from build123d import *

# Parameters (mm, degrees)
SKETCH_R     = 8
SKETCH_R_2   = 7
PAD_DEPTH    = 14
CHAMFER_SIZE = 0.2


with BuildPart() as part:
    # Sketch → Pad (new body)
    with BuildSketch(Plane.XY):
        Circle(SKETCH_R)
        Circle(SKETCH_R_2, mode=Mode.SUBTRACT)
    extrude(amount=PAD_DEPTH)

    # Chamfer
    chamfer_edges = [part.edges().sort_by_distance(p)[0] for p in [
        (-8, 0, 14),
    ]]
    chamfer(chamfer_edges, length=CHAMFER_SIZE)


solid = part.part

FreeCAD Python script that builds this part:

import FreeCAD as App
import Part
import Sketcher
from FreeCAD import Vector


def edges_at(feature, points):
    """Names of the edges that pass closest to the given points."""
    edges = feature.Shape.Edges
    near = lambda p: min(range(len(edges)), key=lambda i: edges[i].distToShape(Part.Vertex(*p))[0])
    return sorted({f"Edge{near(p) + 1}" for p in points})

doc = App.newDocument("Part")
params = doc.addObject("Spreadsheet::Sheet", "Params")
for row, (alias, value) in enumerate([
    ("sketch1_diameter", "16 mm"),
    ("sketch1_diameter2", "14 mm"),
    ("pad1_length", "14 mm"),
    ("chamfer_size", "0.2 mm"),
], start=1):
    params.set(f"A{row}", alias)
    params.set(f"B{row}", "=" + value)
    params.setAlias(f"B{row}", alias)

body = doc.addObject("PartDesign::Body", "Body")

# Sketch on XY plane
sketch1 = body.newObject("Sketcher::SketchObject", "Sketch")
sketch1.AttachmentSupport = (doc.getObject("XY_Plane"), [""])
sketch1.MapMode = "FlatFace"
sketch1.addGeometry(Part.Circle(Vector(0, 0, 0), Vector(0, 0, 1), 8), False)
sketch1.addGeometry(Part.Circle(Vector(0, 0, 0), Vector(0, 0, 1), 7), False)
sketch1.addConstraint(Sketcher.Constraint("Coincident", 0, 3, -1, 1))
sketch1.addConstraint(Sketcher.Constraint("Coincident", 1, 3, -1, 1))
sketch1.addConstraint(Sketcher.Constraint("Diameter", 0, 16.0))
sketch1.addConstraint(Sketcher.Constraint("Diameter", 1, 14.0))
sketch1.setExpression("Constraints[2]", "Params.sketch1_diameter")
sketch1.setExpression("Constraints[3]", "Params.sketch1_diameter2")
pad1 = body.newObject("PartDesign::Pad", "Pad")
pad1.Profile = sketch1
pad1.setExpression("Length", "Params.pad1_length")
doc.recompute()

chamfer = body.newObject("PartDesign::Chamfer", "Chamfer")
chamfer.Base = (pad1, edges_at(pad1, [(-8, 0, 14)]))
chamfer.setExpression("Size", "Params.chamfer_size")

doc.recompute()
